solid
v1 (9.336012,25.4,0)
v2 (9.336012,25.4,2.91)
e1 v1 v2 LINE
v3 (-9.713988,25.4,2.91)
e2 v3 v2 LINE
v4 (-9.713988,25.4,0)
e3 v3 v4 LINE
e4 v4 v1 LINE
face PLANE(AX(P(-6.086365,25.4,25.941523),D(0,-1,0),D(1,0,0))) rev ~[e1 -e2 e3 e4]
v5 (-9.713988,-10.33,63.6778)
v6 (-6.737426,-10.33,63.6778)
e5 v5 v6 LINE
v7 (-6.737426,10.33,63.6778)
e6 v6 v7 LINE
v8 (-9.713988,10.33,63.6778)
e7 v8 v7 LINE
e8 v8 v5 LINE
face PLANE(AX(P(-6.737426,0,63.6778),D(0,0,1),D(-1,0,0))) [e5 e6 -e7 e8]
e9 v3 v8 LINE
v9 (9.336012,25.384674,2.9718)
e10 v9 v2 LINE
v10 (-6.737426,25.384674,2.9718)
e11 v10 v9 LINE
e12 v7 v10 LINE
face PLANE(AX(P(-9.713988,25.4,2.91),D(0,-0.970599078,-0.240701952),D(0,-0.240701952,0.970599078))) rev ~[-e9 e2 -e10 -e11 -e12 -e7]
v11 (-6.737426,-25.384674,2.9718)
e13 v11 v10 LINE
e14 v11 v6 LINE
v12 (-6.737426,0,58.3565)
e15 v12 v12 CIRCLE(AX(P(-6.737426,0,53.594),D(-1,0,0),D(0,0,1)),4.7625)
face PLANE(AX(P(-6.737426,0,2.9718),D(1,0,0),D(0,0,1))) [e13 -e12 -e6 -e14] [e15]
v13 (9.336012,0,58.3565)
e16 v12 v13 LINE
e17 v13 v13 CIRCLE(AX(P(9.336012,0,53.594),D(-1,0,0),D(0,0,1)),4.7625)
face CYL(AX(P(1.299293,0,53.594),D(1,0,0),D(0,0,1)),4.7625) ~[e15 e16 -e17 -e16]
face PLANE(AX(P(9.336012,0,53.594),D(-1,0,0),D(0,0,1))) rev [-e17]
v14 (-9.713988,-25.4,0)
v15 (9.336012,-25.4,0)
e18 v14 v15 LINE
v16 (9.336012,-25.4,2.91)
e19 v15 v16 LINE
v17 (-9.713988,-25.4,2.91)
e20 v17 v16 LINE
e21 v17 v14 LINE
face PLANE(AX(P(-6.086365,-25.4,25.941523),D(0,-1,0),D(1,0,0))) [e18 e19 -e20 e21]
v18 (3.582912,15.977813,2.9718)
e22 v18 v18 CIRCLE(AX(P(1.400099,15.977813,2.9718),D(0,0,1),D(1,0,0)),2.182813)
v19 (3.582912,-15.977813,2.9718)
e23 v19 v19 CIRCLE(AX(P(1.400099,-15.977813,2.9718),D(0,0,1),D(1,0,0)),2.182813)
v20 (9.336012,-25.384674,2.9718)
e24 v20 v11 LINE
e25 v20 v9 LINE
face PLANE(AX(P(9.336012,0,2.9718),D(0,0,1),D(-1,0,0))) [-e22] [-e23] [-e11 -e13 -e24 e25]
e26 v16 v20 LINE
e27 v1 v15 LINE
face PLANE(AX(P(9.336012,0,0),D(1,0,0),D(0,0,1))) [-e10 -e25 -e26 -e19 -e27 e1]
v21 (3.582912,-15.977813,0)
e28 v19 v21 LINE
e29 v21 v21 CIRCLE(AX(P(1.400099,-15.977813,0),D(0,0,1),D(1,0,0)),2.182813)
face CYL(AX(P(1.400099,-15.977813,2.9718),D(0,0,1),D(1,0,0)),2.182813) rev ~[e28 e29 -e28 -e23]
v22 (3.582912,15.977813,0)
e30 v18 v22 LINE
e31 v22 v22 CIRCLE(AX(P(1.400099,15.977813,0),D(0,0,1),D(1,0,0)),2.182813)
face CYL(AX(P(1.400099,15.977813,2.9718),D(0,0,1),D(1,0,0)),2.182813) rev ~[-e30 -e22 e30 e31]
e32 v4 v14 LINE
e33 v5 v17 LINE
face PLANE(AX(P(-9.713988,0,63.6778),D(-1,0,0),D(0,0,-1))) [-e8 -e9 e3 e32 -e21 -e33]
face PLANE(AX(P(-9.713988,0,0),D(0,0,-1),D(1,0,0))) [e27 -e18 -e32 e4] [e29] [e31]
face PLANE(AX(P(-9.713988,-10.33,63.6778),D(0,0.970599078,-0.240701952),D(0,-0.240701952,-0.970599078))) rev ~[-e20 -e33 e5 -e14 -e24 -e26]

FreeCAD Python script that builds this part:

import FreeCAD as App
import Part
import Sketcher
Q = App.Units.Quantity


def add_polygon(sketch, points):
    """Adds a closed chain of lines whose ends are joined by coincident constraints."""
    first, n = sketch.GeometryCount, len(points)
    for a, b in zip(points, points[1:] + points[:1]):
        sketch.addGeometry(Part.LineSegment(App.Vector(*a, 0), App.Vector(*b, 0)), False)
    for i in range(n):
        sketch.addConstraint(Sketcher.Constraint("Coincident", first + i, 2, first + (i + 1) % n, 1))

doc = App.newDocument("Part")
params = doc.addObject("Spreadsheet::Sheet", "Params")
for row, (alias, value) in enumerate([
    ("sketch1_width", "0.75 in"),
    ("sketch1_height", "2.39 in"),
    ("sketch1_height2", "2.507 in"),
    ("pad1_length", "2 in"),
    ("sketch2_height", "0.1875 in"),
    ("revolution_angle", "360 deg"),
    ("sketch3_diameter", "0.171875 in"),
], start=1):
    params.set(f"A{row}", alias)
    params.set(f"B{row}", "=" + value)
    params.setAlias(f"B{row}", alias)

body = doc.addObject("PartDesign::Body", "Body")

# Sketch on XZ plane
sketch1 = body.newObject("Sketcher::SketchObject", "Sketch")
sketch1.AttachmentSupport = (doc.getObject("XZ_Plane"), [""])
sketch1.MapMode = "FlatFace"
add_polygon(sketch1, [(-6.7, 63.7), (-9.7, 63.7), (-9.7, 0), (9.3, 0), (9.3, 3), (-6.7, 3)])  # lines 0-5
sketch1.addConstraint(Sketcher.Constraint("Horizontal", 0))
sketch1.addConstraint(Sketcher.Constraint("Vertical", 1))
sketch1.addConstraint(Sketcher.Constraint("Horizontal", 2))
sketch1.addConstraint(Sketcher.Constraint("Vertical", 3))
sketch1.addConstraint(Sketcher.Constraint("Horizontal", 4))
sketch1.addConstraint(Sketcher.Constraint("Vertical", 5))
sketch1.addConstraint(Sketcher.Constraint("PointOnObject", 1, 2, -1))
sketch1.addConstraint(Sketcher.Constraint("DistanceX", 2, 1, 2, 2, Q("0.75 in")))
sketch1.addConstraint(Sketcher.Constraint("DistanceY", 5, 1, 5, 2, Q("2.39 in")))
sketch1.addConstraint(Sketcher.Constraint("DistanceY", 1, 2, 1, 1, Q("2.507 in")))
sketch1.addConstraint(Sketcher.Constraint("DistanceX", 0, 2, 0, 1, Q("2.976562 mm")))
sketch1.addConstraint(Sketcher.Constraint("DistanceX", 0, 2, -1, 1, Q("9.713988 mm")))
sketch1.setExpression("Constraints[13]", "Params.sketch1_width")
sketch1.setExpression("Constraints[14]", "Params.sketch1_height")
sketch1.setExpression("Constraints[15]", "Params.sketch1_height2")
pad1 = body.newObject("PartDesign::Pad", "Pad")
pad1.Profile = sketch1
pad1.setExpression("Length", "Params.pad1_length")
pad1.Midplane = True

# Sketch on XZ plane
sketch2 = body.newObject("Sketcher::SketchObject", "Sketch001")
sketch2.AttachmentSupport = (doc.getObject("XZ_Plane"), [""])
sketch2.MapMode = "FlatFace"
add_polygon(sketch2, [(-6.7, 58.4), (-6.7, 53.6), (9.3, 53.6), (9.3, 58.4)])  # lines 0-3
sketch2.addGeometry(Part.LineSegment(App.Vector(9.3, 53.6, 0), App.Vector(-6.7, 53.6, 0)), True)  # axis
sketch2.addConstraint(Sketcher.Constraint("Vertical", 0))
sketch2.addConstraint(Sketcher.Constraint("Horizontal", 1))
sketch2.addConstraint(Sketcher.Constraint("Vertical", 2))
sketch2.addConstraint(Sketcher.Constraint("Horizontal", 3))
sketch2.addConstraint(Sketcher.Constraint("Horizontal", 4))
sketch2.addConstraint(Sketcher.Constraint("Coincident", 4, 1, 1, 2))
sketch2.addConstraint(Sketcher.Constraint("Vertical", 3, 2, 4, 2))
sketch2.addConstraint(Sketcher.Constraint("DistanceY", 0, 2, 0, 1, Q("0.1875 in")))
sketch2.addConstraint(Sketcher.Constraint("DistanceY", -1, 1, 0, 2, Q("2.11 in")))
sketch2.addConstraint(Sketcher.Constraint("DistanceX", 1, 1, 1, 2, Q("16.073438 mm")))
sketch2.addConstraint(Sketcher.Constraint("DistanceX", 0, 2, -1, 1, Q("6.737426 mm")))
sketch2.setExpression("Constraints[11]", "Params.sketch2_height")
revolution = body.newObject("PartDesign::Revolution", "Revolution")
revolution.Profile = sketch2
revolution.ReferenceAxis = (sketch2, ["Axis0"])
revolution.setExpression("Angle", "Params.revolution_angle")

# Sketch on XY plane
sketch3 = body.newObject("Sketcher::SketchObject", "Sketch002")
sketch3.AttachmentSupport = (doc.getObject("XY_Plane"), [""])
sketch3.MapMode = "FlatFace"
sketch3.AttachmentOffset = App.Placement(App.Vector(0, 0, 0.117 * 25.4), App.Rotation())
sketch3.addGeometry(Part.Circle(App.Vector(1.4, 16, 0), App.Vector(0, 0, 1), 2.2), False)
sketch3.addGeometry(Part.Circle(App.Vector(1.4, -16, 0), App.Vector(0, 0, 1), 2.2), False)
sketch3.addConstraint(Sketcher.Constraint("Equal", 0, 1))
sketch3.addConstraint(Sketcher.Constraint("Symmetric", 0, 3, 1, 3, -1))
sketch3.addConstraint(Sketcher.Constraint("Diameter", 0, Q("0.171875 in")))
sketch3.addConstraint(Sketcher.Constraint("DistanceX", -1, 1, 0, 3, Q("1.400099 mm")))
sketch3.addConstraint(Sketcher.Constraint("DistanceY", -1, 1, 0, 3, Q("15.977813 mm")))
sketch3.setExpression("Constraints[2]", "Params.sketch3_diameter")
pocket1 = body.newObject("PartDesign::Pocket", "Pocket")
pocket1.Profile = sketch3
pocket1.Type = "ThroughAll"

# Sketch on YZ plane
sketch4 = body.newObject("Sketcher::SketchObject", "Sketch003")
sketch4.AttachmentSupport = (doc.getObject("YZ_Plane"), [""])
sketch4.MapMode = "FlatFace"
sketch4.AttachmentOffset = App.Placement(App.Vector(0, 0, -9.713988), App.Rotation())
add_polygon(sketch4, [(-25, 64), (-10, 64), (-25, 3)])  # lines 0-2
add_polygon(sketch4, [(25, 3), (10, 64), (25, 64)])  # lines 3-5
sketch4.addConstraint(Sketcher.Constraint("Horizontal", 0))
sketch4.addConstraint(Sketcher.Constraint("Vertical", 2))
sketch4.addConstraint(Sketcher.Constraint("Horizontal", 4))
sketch4.addConstraint(Sketcher.Constraint("Vertical", 5))
sketch4.addConstraint(Sketcher.Constraint("Symmetric", 0, 2, 3, 2, -2))
sketch4.addConstraint(Sketcher.Constraint("Symmetric", 1, 2, 5, 2, -2))
sketch4.addConstraint(Sketcher.Constraint("DistanceX", 1, 2, -1, 1, Q("1 in")))
sketch4.addConstraint(Sketcher.Constraint("DistanceY", -1, 1, 0, 2, Q("2.507 in")))
sketch4.addConstraint(Sketcher.Constraint("DistanceX", 0, 1, 0, 2, Q("15.07 mm")))
sketch4.addConstraint(Sketcher.Constraint("DistanceY", 2, 1, 2, 2, Q("60.7678 mm")))
pocket2 = body.newObject("PartDesign::Pocket", "Pocket001")
pocket2.Profile = sketch4
pocket2.Type = "ThroughAll"
pocket2.Reversed = True

doc.recompute()
